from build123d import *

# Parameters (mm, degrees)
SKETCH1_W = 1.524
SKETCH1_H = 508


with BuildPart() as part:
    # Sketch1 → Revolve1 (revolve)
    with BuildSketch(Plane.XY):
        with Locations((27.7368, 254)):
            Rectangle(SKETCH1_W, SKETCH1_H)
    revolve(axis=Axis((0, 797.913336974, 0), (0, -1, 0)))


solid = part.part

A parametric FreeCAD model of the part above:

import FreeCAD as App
import Part
import Sketcher

V = App.Vector
Q = App.Units.Quantity


def add_polygon(sketch, points):
    """Adds a closed chain of lines whose ends are joined by coincident constraints."""
    first, n = sketch.GeometryCount, len(points)
    for a, b in zip(points, points[1:] + points[:1]):
        sketch.addGeometry(Part.LineSegment(App.Vector(*a, 0), App.Vector(*b, 0)), False)
    for i in range(n):
        sketch.addConstraint(Sketcher.Constraint("Coincident", first + i, 2, first + (i + 1) % n, 1))

doc = App.newDocument("Part")
params = doc.addObject("Spreadsheet::Sheet", "Params")
for row, (alias, value) in enumerate([
    ("sketch1_height", "20 in"),
    ("sketch1_width", "0.06 in"),
    ("revolution_angle", "360 deg"),
], start=1):
    params.set(f"A{row}", alias)
    params.set(f"B{row}", "=" + value)
    params.setAlias(f"B{row}", alias)

body = doc.addObject("PartDesign::Body", "Body")

# Sketch on XY plane
sketch1 = doc.addObject("Sketcher::SketchObject", "Sketch")
body.addObject(sketch1)
sketch1.AttachmentSupport = (doc.XY_Plane, [""])
sketch1.MapMode = "FlatFace"
add_polygon(sketch1, [(27, 508), (27, 0), (28.5, 0), (28.5, 508)])  # lines 0-3
sketch1.addConstraint([
    Sketcher.Constraint("Vertical", 0),
    Sketcher.Constraint("Horizontal", 1),
    Sketcher.Constraint("Vertical", 2),
    Sketcher.Constraint("Horizontal", 3),
    Sketcher.Constraint("PointOnObject", 0, 2, -1),
    Sketcher.Constraint("DistanceY", 0, 2, 0, 1, Q("20 in")),
    Sketcher.Constraint("DistanceX", 1, 1, 1, 2, Q("0.06 in")),
    Sketcher.Constraint("DistanceX", -1, 1, 0, 2, Q("1.062 in")),
])
sketch1.setExpression("Constraints[9]", "Params.sketch1_height")
sketch1.setExpression("Constraints[10]", "Params.sketch1_width")
revolution = doc.addObject("PartDesign::Revolution", "Revolution")
body.addObject(revolution)
revolution.Profile = sketch1
revolution.ReferenceAxis = (sketch1, ["V_Axis"])
revolution.setExpression("Angle", "Params.revolution_angle")

doc.recompute()
